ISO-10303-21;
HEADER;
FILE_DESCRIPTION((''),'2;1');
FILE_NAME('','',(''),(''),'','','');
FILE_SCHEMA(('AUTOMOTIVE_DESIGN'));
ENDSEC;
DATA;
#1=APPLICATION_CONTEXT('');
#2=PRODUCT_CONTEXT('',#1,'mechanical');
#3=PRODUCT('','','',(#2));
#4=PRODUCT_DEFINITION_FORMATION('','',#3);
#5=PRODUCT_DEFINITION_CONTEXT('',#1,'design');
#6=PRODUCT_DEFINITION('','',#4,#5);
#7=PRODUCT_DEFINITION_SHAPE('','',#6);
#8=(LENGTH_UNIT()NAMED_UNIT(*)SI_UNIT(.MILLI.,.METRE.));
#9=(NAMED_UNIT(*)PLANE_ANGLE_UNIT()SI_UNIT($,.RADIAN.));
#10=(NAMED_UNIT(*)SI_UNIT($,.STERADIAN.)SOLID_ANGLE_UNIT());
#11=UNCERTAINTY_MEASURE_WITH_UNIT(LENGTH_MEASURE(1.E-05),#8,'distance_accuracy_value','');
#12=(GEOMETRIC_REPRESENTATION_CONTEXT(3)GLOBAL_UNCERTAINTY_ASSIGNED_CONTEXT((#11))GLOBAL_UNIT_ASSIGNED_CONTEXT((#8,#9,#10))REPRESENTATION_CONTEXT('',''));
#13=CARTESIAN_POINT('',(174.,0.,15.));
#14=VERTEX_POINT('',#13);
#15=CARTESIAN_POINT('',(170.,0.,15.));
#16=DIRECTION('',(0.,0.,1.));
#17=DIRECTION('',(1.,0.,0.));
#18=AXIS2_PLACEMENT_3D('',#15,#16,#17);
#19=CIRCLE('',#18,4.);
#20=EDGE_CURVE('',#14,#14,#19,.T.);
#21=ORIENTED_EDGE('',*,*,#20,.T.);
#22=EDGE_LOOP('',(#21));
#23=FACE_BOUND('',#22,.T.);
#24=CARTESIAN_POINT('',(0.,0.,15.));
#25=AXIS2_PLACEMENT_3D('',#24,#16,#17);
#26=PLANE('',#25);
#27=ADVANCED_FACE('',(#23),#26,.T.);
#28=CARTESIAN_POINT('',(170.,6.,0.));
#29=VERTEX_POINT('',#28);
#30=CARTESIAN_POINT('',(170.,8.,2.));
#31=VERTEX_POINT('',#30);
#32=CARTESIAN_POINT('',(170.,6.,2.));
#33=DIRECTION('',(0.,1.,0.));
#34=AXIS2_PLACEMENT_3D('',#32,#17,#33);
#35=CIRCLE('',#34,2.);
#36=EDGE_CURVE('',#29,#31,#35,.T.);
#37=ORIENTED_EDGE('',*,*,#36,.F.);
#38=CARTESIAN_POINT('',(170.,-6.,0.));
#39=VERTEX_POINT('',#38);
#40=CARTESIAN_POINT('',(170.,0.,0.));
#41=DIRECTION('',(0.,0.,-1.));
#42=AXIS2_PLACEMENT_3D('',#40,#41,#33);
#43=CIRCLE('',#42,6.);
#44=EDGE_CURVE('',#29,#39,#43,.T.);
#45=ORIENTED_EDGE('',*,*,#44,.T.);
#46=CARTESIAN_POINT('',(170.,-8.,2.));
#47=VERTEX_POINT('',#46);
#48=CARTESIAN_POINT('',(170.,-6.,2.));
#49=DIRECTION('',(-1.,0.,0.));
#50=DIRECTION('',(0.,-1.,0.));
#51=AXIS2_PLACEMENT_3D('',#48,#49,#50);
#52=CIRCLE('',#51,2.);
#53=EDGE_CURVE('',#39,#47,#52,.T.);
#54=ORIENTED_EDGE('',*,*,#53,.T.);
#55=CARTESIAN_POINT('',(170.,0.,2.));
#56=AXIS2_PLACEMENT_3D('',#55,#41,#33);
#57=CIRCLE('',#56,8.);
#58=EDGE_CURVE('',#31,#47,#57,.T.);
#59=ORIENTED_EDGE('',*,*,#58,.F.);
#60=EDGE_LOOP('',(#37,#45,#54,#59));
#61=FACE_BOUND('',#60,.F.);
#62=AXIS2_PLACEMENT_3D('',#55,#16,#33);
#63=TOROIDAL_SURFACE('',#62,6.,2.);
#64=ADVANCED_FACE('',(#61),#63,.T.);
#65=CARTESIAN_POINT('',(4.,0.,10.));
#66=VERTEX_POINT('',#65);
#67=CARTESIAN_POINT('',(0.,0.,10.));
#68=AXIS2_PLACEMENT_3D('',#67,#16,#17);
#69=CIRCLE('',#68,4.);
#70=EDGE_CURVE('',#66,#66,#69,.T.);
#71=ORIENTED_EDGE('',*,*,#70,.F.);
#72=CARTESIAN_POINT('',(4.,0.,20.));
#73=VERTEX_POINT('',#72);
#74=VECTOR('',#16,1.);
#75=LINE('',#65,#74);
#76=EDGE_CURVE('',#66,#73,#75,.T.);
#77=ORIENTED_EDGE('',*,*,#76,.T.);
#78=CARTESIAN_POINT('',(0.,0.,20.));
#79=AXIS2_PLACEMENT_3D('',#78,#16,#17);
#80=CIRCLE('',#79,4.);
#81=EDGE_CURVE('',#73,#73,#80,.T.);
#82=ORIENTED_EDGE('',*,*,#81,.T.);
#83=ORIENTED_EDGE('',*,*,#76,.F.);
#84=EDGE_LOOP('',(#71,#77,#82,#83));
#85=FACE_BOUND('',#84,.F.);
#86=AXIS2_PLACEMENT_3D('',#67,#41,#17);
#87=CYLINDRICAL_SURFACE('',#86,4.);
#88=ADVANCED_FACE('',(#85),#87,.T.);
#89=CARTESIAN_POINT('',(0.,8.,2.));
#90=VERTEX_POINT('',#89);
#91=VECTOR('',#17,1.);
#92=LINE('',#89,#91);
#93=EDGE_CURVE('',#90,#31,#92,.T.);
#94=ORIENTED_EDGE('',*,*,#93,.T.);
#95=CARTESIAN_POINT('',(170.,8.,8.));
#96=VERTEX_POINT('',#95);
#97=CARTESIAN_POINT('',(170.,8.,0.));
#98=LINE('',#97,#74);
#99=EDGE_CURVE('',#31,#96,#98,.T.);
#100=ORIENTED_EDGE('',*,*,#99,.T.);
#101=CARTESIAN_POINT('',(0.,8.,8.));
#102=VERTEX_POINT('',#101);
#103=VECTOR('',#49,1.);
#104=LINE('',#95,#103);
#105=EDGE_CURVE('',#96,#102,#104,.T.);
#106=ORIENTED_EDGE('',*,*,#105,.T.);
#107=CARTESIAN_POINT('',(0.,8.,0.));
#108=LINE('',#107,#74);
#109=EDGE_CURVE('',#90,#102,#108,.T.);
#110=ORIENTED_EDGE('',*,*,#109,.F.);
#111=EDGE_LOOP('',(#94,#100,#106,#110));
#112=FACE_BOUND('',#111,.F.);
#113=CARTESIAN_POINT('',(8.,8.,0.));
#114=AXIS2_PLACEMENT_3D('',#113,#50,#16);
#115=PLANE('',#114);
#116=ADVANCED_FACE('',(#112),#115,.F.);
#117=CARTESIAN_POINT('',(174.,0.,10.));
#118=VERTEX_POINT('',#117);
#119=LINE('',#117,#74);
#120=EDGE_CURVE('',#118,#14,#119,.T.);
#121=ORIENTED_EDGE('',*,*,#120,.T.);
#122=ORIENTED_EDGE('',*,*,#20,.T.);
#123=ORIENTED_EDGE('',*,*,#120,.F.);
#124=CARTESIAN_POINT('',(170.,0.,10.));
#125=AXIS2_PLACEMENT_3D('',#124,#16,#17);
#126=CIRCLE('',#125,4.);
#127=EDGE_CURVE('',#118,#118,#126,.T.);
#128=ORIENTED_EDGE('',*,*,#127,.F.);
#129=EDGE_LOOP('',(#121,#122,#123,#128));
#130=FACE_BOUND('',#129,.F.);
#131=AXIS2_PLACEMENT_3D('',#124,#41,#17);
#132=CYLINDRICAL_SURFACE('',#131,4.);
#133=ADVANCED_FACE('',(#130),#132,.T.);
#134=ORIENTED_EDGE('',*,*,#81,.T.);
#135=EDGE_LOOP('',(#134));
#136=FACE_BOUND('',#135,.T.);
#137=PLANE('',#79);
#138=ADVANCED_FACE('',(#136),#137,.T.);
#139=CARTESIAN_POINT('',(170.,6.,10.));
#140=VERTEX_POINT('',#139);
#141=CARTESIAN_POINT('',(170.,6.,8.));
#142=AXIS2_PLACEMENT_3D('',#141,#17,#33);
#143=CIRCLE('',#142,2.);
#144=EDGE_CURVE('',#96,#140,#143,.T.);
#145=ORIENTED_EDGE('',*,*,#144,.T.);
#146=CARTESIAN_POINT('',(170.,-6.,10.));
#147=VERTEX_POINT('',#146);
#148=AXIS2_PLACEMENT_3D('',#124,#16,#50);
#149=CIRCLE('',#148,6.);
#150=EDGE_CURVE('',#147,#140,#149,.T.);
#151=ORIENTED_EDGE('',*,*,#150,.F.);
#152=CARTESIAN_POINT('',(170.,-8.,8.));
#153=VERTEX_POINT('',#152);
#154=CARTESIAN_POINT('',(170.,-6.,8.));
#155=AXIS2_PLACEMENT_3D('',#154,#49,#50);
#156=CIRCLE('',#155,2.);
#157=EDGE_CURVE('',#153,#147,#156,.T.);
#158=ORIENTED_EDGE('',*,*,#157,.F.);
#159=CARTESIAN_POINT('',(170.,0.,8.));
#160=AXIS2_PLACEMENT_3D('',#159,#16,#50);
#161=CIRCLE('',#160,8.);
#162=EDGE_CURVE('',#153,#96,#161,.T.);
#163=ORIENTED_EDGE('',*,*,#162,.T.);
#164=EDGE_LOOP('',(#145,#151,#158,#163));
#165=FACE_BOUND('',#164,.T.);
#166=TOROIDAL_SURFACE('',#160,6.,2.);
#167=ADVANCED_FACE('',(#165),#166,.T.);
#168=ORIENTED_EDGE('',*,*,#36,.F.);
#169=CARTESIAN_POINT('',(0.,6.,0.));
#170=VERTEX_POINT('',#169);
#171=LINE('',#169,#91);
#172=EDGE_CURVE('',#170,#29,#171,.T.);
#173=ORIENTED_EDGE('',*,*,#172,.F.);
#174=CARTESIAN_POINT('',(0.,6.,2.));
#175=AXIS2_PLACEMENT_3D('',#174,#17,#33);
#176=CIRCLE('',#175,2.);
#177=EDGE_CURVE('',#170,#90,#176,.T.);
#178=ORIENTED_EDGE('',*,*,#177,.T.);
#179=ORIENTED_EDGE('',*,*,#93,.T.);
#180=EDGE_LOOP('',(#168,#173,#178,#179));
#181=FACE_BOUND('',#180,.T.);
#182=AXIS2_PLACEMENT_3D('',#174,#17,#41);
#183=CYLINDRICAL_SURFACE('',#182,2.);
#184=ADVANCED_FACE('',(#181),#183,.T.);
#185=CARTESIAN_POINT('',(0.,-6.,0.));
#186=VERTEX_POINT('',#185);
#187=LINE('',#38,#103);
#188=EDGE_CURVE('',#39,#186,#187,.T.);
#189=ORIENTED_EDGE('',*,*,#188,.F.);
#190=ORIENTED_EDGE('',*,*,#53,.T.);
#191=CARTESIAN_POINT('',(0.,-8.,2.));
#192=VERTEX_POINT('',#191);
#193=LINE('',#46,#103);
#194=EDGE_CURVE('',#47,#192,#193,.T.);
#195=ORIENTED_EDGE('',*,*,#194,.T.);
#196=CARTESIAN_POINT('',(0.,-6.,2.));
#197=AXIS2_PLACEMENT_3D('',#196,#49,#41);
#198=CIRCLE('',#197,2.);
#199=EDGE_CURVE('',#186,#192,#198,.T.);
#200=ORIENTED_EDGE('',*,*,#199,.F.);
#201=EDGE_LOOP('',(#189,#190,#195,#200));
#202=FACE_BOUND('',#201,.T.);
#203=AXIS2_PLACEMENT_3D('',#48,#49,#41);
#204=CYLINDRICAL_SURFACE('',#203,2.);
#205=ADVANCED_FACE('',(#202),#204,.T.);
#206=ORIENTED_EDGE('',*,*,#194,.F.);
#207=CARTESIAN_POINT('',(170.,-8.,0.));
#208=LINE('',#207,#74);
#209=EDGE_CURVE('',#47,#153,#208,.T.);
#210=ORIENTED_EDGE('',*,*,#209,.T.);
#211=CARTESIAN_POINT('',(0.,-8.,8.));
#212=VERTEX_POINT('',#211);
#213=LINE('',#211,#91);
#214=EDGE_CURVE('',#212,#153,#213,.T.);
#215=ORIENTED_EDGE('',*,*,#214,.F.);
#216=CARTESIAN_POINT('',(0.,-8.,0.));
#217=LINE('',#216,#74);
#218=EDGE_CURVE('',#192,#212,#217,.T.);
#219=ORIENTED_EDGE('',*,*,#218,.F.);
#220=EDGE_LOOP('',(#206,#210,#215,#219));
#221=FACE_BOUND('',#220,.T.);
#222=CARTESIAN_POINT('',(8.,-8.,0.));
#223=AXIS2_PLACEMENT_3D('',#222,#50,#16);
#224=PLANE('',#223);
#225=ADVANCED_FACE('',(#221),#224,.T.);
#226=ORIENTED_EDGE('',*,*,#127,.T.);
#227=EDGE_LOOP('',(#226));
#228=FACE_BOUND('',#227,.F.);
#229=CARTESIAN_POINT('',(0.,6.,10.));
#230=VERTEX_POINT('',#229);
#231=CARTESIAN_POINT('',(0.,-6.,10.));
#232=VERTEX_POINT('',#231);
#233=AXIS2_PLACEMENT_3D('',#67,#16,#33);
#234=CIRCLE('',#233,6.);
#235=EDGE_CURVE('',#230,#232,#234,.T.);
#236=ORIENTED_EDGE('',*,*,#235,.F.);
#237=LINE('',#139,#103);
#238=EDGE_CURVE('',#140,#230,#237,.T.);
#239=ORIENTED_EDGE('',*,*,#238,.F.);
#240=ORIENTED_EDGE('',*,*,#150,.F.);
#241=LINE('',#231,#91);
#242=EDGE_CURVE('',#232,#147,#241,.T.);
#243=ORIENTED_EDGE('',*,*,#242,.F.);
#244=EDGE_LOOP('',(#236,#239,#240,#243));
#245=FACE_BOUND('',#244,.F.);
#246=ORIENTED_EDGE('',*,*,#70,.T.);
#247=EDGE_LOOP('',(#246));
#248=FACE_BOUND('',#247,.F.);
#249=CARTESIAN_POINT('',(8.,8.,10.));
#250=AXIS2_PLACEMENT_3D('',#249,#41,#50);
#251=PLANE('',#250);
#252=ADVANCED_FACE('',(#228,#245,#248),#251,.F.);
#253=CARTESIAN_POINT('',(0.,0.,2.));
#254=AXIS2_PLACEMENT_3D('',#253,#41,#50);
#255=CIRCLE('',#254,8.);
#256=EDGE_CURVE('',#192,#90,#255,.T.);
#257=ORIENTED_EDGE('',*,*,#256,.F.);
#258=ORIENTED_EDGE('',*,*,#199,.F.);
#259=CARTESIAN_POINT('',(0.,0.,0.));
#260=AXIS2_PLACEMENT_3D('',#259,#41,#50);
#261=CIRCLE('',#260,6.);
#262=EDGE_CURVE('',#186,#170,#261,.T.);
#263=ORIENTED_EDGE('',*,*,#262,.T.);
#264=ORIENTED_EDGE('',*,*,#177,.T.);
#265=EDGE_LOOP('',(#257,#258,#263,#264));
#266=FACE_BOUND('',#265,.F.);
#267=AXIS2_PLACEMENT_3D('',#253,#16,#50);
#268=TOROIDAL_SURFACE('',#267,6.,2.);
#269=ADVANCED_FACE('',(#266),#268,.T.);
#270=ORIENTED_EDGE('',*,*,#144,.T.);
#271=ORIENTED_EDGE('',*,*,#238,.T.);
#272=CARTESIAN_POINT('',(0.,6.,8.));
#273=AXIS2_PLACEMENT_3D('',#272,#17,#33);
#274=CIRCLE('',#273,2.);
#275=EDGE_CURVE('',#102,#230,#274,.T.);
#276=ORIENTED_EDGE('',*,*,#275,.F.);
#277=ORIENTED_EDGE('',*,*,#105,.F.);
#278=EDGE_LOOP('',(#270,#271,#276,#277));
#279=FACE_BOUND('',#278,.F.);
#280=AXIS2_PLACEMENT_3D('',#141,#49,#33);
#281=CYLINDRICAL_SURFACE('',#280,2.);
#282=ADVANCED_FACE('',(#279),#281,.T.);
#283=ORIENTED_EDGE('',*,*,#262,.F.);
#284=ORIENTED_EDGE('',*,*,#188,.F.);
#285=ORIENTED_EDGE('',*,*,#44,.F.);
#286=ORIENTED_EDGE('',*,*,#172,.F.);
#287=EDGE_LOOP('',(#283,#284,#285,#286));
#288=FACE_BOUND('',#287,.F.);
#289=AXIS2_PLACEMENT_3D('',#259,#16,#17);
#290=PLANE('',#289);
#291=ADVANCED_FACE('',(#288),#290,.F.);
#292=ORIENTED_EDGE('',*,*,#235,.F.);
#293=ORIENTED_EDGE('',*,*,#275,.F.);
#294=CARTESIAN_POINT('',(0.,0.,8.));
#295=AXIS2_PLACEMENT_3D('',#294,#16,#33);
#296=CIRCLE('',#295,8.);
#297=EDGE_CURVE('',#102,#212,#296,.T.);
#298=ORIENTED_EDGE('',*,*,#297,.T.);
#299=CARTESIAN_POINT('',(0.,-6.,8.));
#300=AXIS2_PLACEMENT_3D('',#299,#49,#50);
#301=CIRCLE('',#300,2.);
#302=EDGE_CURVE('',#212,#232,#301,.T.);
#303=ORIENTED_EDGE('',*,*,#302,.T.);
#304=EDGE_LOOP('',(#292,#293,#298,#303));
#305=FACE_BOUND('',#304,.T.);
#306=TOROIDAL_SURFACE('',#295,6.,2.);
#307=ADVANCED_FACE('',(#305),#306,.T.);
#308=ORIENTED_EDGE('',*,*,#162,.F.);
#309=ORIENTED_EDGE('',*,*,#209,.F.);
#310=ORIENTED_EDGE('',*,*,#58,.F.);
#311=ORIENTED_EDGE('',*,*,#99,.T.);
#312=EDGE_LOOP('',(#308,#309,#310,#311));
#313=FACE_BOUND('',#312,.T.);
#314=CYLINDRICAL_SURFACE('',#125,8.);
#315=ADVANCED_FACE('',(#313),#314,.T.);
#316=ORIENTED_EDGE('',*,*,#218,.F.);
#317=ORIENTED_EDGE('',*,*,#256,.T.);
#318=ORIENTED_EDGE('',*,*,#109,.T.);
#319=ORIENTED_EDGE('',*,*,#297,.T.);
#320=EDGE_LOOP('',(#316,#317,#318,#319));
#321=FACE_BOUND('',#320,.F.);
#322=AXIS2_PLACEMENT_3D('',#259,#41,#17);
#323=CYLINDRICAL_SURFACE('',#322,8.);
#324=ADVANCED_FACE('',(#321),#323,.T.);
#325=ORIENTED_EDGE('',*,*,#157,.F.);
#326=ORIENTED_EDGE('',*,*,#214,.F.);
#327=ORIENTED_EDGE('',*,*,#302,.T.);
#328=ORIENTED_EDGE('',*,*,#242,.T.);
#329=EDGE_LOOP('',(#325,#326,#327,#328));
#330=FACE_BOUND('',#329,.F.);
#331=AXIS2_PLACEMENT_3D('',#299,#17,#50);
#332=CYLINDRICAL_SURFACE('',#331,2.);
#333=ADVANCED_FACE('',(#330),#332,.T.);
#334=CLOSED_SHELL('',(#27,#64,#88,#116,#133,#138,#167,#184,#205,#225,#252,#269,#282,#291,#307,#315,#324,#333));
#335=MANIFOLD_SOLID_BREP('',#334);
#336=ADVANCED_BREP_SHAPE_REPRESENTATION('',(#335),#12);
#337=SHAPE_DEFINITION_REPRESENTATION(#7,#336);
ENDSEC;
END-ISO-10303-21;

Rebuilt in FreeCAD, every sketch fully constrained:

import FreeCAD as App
import Part
import Sketcher
from FreeCAD import Vector
Q = App.Units.Quantity


def edges_at(feature, points):
    """Names of the edges that pass closest to the given points."""
    edges = feature.Shape.Edges
    near = lambda p: min(range(len(edges)), key=lambda i: edges[i].distToShape(Part.Vertex(*p))[0])
    return sorted({f"Edge{near(p) + 1}" for p in points})

doc = App.newDocument("Part")
params = doc.addObject("Spreadsheet::Sheet", "Params")
for row, (alias, value) in enumerate([
    ("sketch1_diameter", "16 mm"),
    ("pad1_length", "10 mm"),
    ("sketch2_width", "16 mm"),
    ("sketch2_height", "10 mm"),
    ("pad2_length", "162 mm"),
    ("pad2_length2", "8 mm"),
    ("sketch3_diameter", "16 mm"),
    ("pad3_length", "10 mm"),
    ("sketch4_diameter", "8 mm"),
    ("pad4_length", "5 mm"),
    ("sketch5_diameter", "8 mm"),
    ("pad5_length", "10 mm"),
    ("fillet_radius", "2 mm"),
], start=1):
    params.set(f"A{row}", alias)
    params.set(f"B{row}", "=" + value)
    params.setAlias(f"B{row}", alias)

body = doc.addObject("PartDesign::Body", "Body")

# Sketch on XY plane
sketch1 = doc.addObject("Sketcher::SketchObject", "Sketch")
body.addObject(sketch1)
sketch1.AttachmentSupport = (doc.XY_Plane, [""])
sketch1.MapMode = "FlatFace"
sketch1.addGeometry(Part.Circle(Vector(0, 0, 0), Vector(0, 0, 1), 8), False)
sketch1.addConstraint([
    Sketcher.Constraint("Coincident", 0, 3, -1, 1),
    Sketcher.Constraint("Diameter", 0, Q("16 mm")),
])
sketch1.setExpression("Constraints[1]", "Params.sketch1_diameter")
pad1 = doc.addObject("PartDesign::Pad", "Pad")
body.addObject(pad1)
pad1.Profile = sketch1
pad1.setExpression("Length", "Params.pad1_length")

# Sketch on YZ plane
sketch2 = doc.addObject("Sketcher::SketchObject", "Sketch001")
body.addObject(sketch2)
sketch2.AttachmentSupport = (doc.YZ_Plane, [""])
sketch2.MapMode = "FlatFace"
sketch2.AttachmentOffset = App.Placement(Vector(0, 0, 8), App.Rotation())
sketch2.addGeometry([
    Part.LineSegment(Vector(-8, 10, 0), Vector(-8, 0, 0)),
    Part.LineSegment(Vector(-8, 0, 0), Vector(8, 0, 0)),
    Part.LineSegment(Vector(8, 0, 0), Vector(8, 10, 0)),
    Part.LineSegment(Vector(8, 10, 0), Vector(-8, 10, 0)),
], False)
sketch2.addConstraint([
    Sketcher.Constraint("Coincident", 0, 2, 1, 1),
    Sketcher.Constraint("Coincident", 1, 2, 2, 1),
    Sketcher.Constraint("Coincident", 2, 2, 3, 1),
    Sketcher.Constraint("Coincident", 3, 2, 0, 1),
    Sketcher.Constraint("Vertical", 0),
    Sketcher.Constraint("Horizontal", 1),
    Sketcher.Constraint("Vertical", 2),
    Sketcher.Constraint("Horizontal", 3),
    Sketcher.Constraint("Symmetric", 0, 2, 1, 2, -1, 1),
    Sketcher.Constraint("DistanceX", 1, 1, 1, 2, Q("16 mm")),
    Sketcher.Constraint("DistanceY", 0, 2, 0, 1, Q("10 mm")),
])
sketch2.setExpression("Constraints[9]", "Params.sketch2_width")
sketch2.setExpression("Constraints[10]", "Params.sketch2_height")
pad2 = doc.addObject("PartDesign::Pad", "Pad001")
body.addObject(pad2)
pad2.Profile = sketch2
pad2.Type = "TwoLengths"
pad2.setExpression("Length", "Params.pad2_length")
pad2.setExpression("Length2", "Params.pad2_length2")

# Sketch on XY plane
sketch3 = doc.addObject("Sketcher::SketchObject", "Sketch002")
body.addObject(sketch3)
sketch3.AttachmentSupport = (doc.XY_Plane, [""])
sketch3.MapMode = "FlatFace"
sketch3.AttachmentOffset = App.Placement(Vector(0, 0, 10), App.Rotation())
sketch3.addGeometry(Part.Circle(Vector(170, 0, 0), Vector(0, 0, 1), 8), False)
sketch3.addConstraint([
    Sketcher.Constraint("PointOnObject", 0, 3, -1),
    Sketcher.Constraint("Diameter", 0, Q("16 mm")),
    Sketcher.Constraint("DistanceX", -1, 1, 0, 3, Q("170 mm")),
])
sketch3.setExpression("Constraints[1]", "Params.sketch3_diameter")
pad3 = doc.addObject("PartDesign::Pad", "Pad002")
body.addObject(pad3)
pad3.Profile = sketch3
pad3.setExpression("Length", "Params.pad3_length")
pad3.Reversed = True

# Sketch on XY plane
sketch4 = doc.addObject("Sketcher::SketchObject", "Sketch003")
body.addObject(sketch4)
sketch4.AttachmentSupport = (doc.XY_Plane, [""])
sketch4.MapMode = "FlatFace"
sketch4.AttachmentOffset = App.Placement(Vector(0, 0, 10), App.Rotation())
sketch4.addGeometry(Part.Circle(Vector(170, 0, 0), Vector(0, 0, 1), 4), False)
sketch4.addConstraint([
    Sketcher.Constraint("PointOnObject", 0, 3, -1),
    Sketcher.Constraint("Diameter", 0, Q("8 mm")),
    Sketcher.Constraint("DistanceX", -1, 1, 0, 3, Q("170 mm")),
])
sketch4.setExpression("Constraints[1]", "Params.sketch4_diameter")
pad4 = doc.addObject("PartDesign::Pad", "Pad003")
body.addObject(pad4)
pad4.Profile = sketch4
pad4.setExpression("Length", "Params.pad4_length")

# Sketch on XY plane
sketch5 = doc.addObject("Sketcher::SketchObject", "Sketch004")
body.addObject(sketch5)
sketch5.AttachmentSupport = (doc.XY_Plane, [""])
sketch5.MapMode = "FlatFace"
sketch5.AttachmentOffset = App.Placement(Vector(0, 0, 10), App.Rotation())
sketch5.addGeometry(Part.Circle(Vector(0, 0, 0), Vector(0, 0, 1), 4), False)
sketch5.addConstraint([
    Sketcher.Constraint("Coincident", 0, 3, -1, 1),
    Sketcher.Constraint("Diameter", 0, Q("8 mm")),
])
sketch5.setExpression("Constraints[1]", "Params.sketch5_diameter")
pad5 = doc.addObject("PartDesign::Pad", "Pad004")
body.addObject(pad5)
pad5.Profile = sketch5
pad5.setExpression("Length", "Params.pad5_length")
doc.recompute()

fillet = doc.addObject("PartDesign::Fillet", "Fillet")
body.addObject(fillet)
fillet.Base = (pad5, edges_at(pad5, [
    (178, 0, 0),
    (85, -8, 0),
    (-8, 0, 0),
    (85, 8, 0),
    (178, 0, 10),
    (85, -8, 10),
    (-8, 0, 10),
    (85, 8, 10),
]))
fillet.setExpression("Radius", "Params.fillet_radius")

doc.recompute()
